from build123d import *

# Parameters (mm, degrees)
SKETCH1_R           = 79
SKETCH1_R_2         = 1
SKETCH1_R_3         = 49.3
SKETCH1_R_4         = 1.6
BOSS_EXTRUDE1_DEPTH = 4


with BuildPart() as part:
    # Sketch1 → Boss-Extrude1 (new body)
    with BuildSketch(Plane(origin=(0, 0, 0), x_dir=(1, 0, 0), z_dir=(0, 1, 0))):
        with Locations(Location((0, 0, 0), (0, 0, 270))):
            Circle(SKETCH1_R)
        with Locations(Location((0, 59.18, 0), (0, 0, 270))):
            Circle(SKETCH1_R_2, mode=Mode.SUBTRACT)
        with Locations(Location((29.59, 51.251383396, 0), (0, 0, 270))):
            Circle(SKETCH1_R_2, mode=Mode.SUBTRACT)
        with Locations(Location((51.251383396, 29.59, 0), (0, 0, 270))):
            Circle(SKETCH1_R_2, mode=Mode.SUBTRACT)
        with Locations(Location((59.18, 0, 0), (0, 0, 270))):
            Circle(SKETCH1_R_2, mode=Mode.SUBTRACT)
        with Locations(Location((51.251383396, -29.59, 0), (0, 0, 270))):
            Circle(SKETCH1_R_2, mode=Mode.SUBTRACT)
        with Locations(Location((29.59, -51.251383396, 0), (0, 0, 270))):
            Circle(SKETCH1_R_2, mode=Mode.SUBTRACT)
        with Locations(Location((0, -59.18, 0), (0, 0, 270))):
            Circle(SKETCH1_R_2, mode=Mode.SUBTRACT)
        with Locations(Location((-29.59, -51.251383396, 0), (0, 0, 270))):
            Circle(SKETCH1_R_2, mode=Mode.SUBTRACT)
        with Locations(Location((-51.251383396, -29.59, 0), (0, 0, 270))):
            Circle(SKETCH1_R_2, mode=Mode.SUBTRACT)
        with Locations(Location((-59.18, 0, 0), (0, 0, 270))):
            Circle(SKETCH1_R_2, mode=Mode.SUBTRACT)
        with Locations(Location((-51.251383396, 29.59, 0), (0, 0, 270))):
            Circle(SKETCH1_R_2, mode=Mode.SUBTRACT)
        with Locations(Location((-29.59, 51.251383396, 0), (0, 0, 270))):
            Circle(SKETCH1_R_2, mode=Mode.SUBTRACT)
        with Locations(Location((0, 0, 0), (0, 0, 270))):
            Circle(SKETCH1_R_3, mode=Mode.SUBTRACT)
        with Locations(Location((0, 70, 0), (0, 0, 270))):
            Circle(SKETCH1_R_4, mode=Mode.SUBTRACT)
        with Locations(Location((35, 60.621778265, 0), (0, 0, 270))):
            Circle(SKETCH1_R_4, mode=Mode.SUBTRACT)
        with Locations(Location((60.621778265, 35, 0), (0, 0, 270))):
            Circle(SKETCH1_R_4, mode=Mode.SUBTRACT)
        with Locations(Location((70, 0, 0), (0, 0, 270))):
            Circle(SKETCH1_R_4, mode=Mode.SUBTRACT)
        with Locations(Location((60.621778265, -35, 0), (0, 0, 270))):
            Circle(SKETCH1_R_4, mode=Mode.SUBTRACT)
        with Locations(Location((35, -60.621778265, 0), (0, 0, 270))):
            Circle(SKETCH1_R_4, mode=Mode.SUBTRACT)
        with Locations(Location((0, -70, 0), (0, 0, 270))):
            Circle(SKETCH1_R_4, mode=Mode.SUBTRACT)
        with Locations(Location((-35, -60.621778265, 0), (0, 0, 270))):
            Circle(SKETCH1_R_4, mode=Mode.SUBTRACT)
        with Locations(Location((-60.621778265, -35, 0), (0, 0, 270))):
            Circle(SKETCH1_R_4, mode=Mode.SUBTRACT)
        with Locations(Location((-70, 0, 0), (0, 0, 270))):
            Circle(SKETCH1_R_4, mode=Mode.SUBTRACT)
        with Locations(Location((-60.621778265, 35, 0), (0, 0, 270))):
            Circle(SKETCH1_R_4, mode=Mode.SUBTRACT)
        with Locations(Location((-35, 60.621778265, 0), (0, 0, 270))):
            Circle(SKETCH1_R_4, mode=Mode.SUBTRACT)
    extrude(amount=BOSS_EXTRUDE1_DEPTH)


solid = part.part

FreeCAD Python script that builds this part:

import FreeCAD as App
import Part
import Sketcher
Q = App.Units.Quantity

doc = App.newDocument("Part")
params = doc.addObject("Spreadsheet::Sheet", "Params")
for row, (alias, value) in enumerate([
    ("sketch1_diameter", "158 mm"),
    ("sketch1_diameter2", "2 mm"),
    ("sketch1_diameter3", "3.2 mm"),
    ("sketch1_diameter4", "98.6 mm"),
    ("pad1_length", "4 mm"),
], start=1):
    params.set(f"A{row}", alias)
    params.set(f"B{row}", "=" + value)
    params.setAlias(f"B{row}", alias)

body = doc.addObject("PartDesign::Body", "Body")

sketch1 = body.newObject("Sketcher::SketchObject", "Sketch")
sketch1.AttachmentSupport = (doc.getObject("XZ_Plane"), [""])
sketch1.MapMode = "FlatFace"
sketch1.addGeometry([
    Part.Circle(App.Vector(0, 0, 0), App.Vector(0, 0, 1), 79),
    Part.Circle(App.Vector(-60.6, -35, 0), App.Vector(0, 0, 1), 1.6),
    Part.Circle(App.Vector(-51.3, -29.6, 0), App.Vector(0, 0, 1), 1),
    Part.Circle(App.Vector(-35, -60.6, 0), App.Vector(0, 0, 1), 1.6),
    Part.Circle(App.Vector(-29.6, -51.3, 0), App.Vector(0, 0, 1), 1),
    Part.Circle(App.Vector(0, -70, 0), App.Vector(0, 0, 1), 1.6),
    Part.Circle(App.Vector(0, -59.2, 0), App.Vector(0, 0, 1), 1),
    Part.Circle(App.Vector(-70, 0, 0), App.Vector(0, 0, 1), 1.6),
    Part.Circle(App.Vector(-59.2, 0, 0), App.Vector(0, 0, 1), 1),
    Part.Circle(App.Vector(-60.6, 35, 0), App.Vector(0, 0, 1), 1.6),
    Part.Circle(App.Vector(-51.3, 29.6, 0), App.Vector(0, 0, 1), 1),
    Part.Circle(App.Vector(-29.6, 51.3, 0), App.Vector(0, 0, 1), 1),
    Part.Circle(App.Vector(-35, 60.6, 0), App.Vector(0, 0, 1), 1.6),
    Part.Circle(App.Vector(35, -60.6, 0), App.Vector(0, 0, 1), 1.6),
    Part.Circle(App.Vector(29.6, -51.3, 0), App.Vector(0, 0, 1), 1),
    Part.Circle(App.Vector(51.3, -29.6, 0), App.Vector(0, 0, 1), 1),
    Part.Circle(App.Vector(60.6, -35, 0), App.Vector(0, 0, 1), 1.6),
    Part.Circle(App.Vector(59.2, 0, 0), App.Vector(0, 0, 1), 1),
    Part.Circle(App.Vector(70, 0, 0), App.Vector(0, 0, 1), 1.6),
    Part.Circle(App.Vector(0, 0, 0), App.Vector(0, 0, 1), 49.3),
    Part.Circle(App.Vector(0, 59.2, 0), App.Vector(0, 0, 1), 1),
    Part.Circle(App.Vector(0, 70, 0), App.Vector(0, 0, 1), 1.6),
    Part.Circle(App.Vector(29.6, 51.3, 0), App.Vector(0, 0, 1), 1),
    Part.Circle(App.Vector(35, 60.6, 0), App.Vector(0, 0, 1), 1.6),
    Part.Circle(App.Vector(51.3, 29.6, 0), App.Vector(0, 0, 1), 1),
    Part.Circle(App.Vector(60.6, 35, 0), App.Vector(0, 0, 1), 1.6),
], False)
sketch1.addConstraint([
    Sketcher.Constraint("Coincident", 0, 3, -1, 1),
    Sketcher.Constraint("Coincident", 19, 3, -1, 1),
    Sketcher.Constraint("Equal", 1, 3),
    Sketcher.Constraint("Equal", 2, 4),
    Sketcher.Constraint("Equal", 3, 5),
    Sketcher.Constraint("Equal", 4, 6),
    Sketcher.Constraint("Equal", 5, 7),
    Sketcher.Constraint("Equal", 6, 8),
    Sketcher.Constraint("Equal", 7, 9),
    Sketcher.Constraint("Equal", 8, 10),
    Sketcher.Constraint("Equal", 10, 11),
    Sketcher.Constraint("Equal", 9, 12),
    Sketcher.Constraint("Equal", 12, 13),
    Sketcher.Constraint("Equal", 11, 14),
    Sketcher.Constraint("Equal", 14, 15),
    Sketcher.Constraint("Equal", 13, 16),
    Sketcher.Constraint("Equal", 15, 17),
    Sketcher.Constraint("Equal", 16, 18),
    Sketcher.Constraint("Equal", 17, 20),
    Sketcher.Constraint("Equal", 18, 21),
    Sketcher.Constraint("Equal", 20, 22),
    Sketcher.Constraint("Equal", 21, 23),
    Sketcher.Constraint("Equal", 22, 24),
    Sketcher.Constraint("Equal", 23, 25),
    Sketcher.Constraint("Symmetric", 12, 3, 13, 3, -1, 1),
    Sketcher.Constraint("Symmetric", 11, 3, 14, 3, -1, 1),
    Sketcher.Constraint("Symmetric", 10, 3, 15, 3, -1, 1),
    Sketcher.Constraint("Symmetric", 9, 3, 16, 3, -1, 1),
    Sketcher.Constraint("Symmetric", 8, 3, 17, 3, -1, 1),
    Sketcher.Constraint("Symmetric", 7, 3, 18, 3, -1, 1),
    Sketcher.Constraint("Symmetric", 6, 3, 20, 3, -1, 1),
    Sketcher.Constraint("Symmetric", 5, 3, 21, 3, -1, 1),
    Sketcher.Constraint("Symmetric", 4, 3, 22, 3, -1, 1),
    Sketcher.Constraint("Symmetric", 3, 3, 23, 3, -1, 1),
    Sketcher.Constraint("Symmetric", 2, 3, 24, 3, -1, 1),
    Sketcher.Constraint("Symmetric", 1, 3, 25, 3, -1, 1),
    Sketcher.Constraint("Symmetric", 3, 3, 13, 3, -2),
    Sketcher.Constraint("Symmetric", 4, 3, 14, 3, -2),
    Sketcher.Constraint("Symmetric", 2, 3, 15, 3, -2),
    Sketcher.Constraint("Symmetric", 1, 3, 16, 3, -2),
    Sketcher.Constraint("PointOnObject", 5, 3, -2),
    Sketcher.Constraint("PointOnObject", 6, 3, -2),
    Sketcher.Constraint("PointOnObject", 7, 3, -1),
    Sketcher.Constraint("PointOnObject", 8, 3, -1),
    Sketcher.Constraint("Diameter", 0, Q("158 mm")),
    Sketcher.Constraint("Diameter", 2, Q("2 mm")),
    Sketcher.Constraint("Diameter", 1, Q("3.2 mm")),
    Sketcher.Constraint("Diameter", 19, Q("98.6 mm")),
    Sketcher.Constraint("DistanceY", 1, 3, -1, 1, Q("35 mm")),
    Sketcher.Constraint("DistanceX", 3, 3, -1, 1, Q("35 mm")),
    Sketcher.Constraint("DistanceY", 5, 3, -1, 1, Q("70 mm")),
    Sketcher.Constraint("DistanceX", 7, 3, -1, 1, Q("70 mm")),
    Sketcher.Constraint("DistanceY", 2, 3, -1, 1, Q("29.59 mm")),
    Sketcher.Constraint("DistanceX", 4, 3, -1, 1, Q("29.59 mm")),
    Sketcher.Constraint("DistanceY", 6, 3, -1, 1, Q("59.18 mm")),
    Sketcher.Constraint("DistanceX", 8, 3, -1, 1, Q("59.18 mm")),
    Sketcher.Constraint("DistanceX", 1, 3, -1, 1, Q("60.621778 mm")),
    Sketcher.Constraint("DistanceY", 3, 3, -1, 1, Q("60.621778 mm")),
    Sketcher.Constraint("DistanceX", 2, 3, -1, 1, Q("51.251383 mm")),
    Sketcher.Constraint("DistanceY", 4, 3, -1, 1, Q("51.251383 mm")),
])
sketch1.setExpression("Constraints[44]", "Params.sketch1_diameter")
sketch1.setExpression("Constraints[45]", "Params.sketch1_diameter2")
sketch1.setExpression("Constraints[46]", "Params.sketch1_diameter3")
sketch1.setExpression("Constraints[47]", "Params.sketch1_diameter4")
pad1 = body.newObject("PartDesign::Pad", "Pad")
pad1.Profile = sketch1
pad1.setExpression("Length", "Params.pad1_length")
pad1.Reversed = True

doc.recompute()
